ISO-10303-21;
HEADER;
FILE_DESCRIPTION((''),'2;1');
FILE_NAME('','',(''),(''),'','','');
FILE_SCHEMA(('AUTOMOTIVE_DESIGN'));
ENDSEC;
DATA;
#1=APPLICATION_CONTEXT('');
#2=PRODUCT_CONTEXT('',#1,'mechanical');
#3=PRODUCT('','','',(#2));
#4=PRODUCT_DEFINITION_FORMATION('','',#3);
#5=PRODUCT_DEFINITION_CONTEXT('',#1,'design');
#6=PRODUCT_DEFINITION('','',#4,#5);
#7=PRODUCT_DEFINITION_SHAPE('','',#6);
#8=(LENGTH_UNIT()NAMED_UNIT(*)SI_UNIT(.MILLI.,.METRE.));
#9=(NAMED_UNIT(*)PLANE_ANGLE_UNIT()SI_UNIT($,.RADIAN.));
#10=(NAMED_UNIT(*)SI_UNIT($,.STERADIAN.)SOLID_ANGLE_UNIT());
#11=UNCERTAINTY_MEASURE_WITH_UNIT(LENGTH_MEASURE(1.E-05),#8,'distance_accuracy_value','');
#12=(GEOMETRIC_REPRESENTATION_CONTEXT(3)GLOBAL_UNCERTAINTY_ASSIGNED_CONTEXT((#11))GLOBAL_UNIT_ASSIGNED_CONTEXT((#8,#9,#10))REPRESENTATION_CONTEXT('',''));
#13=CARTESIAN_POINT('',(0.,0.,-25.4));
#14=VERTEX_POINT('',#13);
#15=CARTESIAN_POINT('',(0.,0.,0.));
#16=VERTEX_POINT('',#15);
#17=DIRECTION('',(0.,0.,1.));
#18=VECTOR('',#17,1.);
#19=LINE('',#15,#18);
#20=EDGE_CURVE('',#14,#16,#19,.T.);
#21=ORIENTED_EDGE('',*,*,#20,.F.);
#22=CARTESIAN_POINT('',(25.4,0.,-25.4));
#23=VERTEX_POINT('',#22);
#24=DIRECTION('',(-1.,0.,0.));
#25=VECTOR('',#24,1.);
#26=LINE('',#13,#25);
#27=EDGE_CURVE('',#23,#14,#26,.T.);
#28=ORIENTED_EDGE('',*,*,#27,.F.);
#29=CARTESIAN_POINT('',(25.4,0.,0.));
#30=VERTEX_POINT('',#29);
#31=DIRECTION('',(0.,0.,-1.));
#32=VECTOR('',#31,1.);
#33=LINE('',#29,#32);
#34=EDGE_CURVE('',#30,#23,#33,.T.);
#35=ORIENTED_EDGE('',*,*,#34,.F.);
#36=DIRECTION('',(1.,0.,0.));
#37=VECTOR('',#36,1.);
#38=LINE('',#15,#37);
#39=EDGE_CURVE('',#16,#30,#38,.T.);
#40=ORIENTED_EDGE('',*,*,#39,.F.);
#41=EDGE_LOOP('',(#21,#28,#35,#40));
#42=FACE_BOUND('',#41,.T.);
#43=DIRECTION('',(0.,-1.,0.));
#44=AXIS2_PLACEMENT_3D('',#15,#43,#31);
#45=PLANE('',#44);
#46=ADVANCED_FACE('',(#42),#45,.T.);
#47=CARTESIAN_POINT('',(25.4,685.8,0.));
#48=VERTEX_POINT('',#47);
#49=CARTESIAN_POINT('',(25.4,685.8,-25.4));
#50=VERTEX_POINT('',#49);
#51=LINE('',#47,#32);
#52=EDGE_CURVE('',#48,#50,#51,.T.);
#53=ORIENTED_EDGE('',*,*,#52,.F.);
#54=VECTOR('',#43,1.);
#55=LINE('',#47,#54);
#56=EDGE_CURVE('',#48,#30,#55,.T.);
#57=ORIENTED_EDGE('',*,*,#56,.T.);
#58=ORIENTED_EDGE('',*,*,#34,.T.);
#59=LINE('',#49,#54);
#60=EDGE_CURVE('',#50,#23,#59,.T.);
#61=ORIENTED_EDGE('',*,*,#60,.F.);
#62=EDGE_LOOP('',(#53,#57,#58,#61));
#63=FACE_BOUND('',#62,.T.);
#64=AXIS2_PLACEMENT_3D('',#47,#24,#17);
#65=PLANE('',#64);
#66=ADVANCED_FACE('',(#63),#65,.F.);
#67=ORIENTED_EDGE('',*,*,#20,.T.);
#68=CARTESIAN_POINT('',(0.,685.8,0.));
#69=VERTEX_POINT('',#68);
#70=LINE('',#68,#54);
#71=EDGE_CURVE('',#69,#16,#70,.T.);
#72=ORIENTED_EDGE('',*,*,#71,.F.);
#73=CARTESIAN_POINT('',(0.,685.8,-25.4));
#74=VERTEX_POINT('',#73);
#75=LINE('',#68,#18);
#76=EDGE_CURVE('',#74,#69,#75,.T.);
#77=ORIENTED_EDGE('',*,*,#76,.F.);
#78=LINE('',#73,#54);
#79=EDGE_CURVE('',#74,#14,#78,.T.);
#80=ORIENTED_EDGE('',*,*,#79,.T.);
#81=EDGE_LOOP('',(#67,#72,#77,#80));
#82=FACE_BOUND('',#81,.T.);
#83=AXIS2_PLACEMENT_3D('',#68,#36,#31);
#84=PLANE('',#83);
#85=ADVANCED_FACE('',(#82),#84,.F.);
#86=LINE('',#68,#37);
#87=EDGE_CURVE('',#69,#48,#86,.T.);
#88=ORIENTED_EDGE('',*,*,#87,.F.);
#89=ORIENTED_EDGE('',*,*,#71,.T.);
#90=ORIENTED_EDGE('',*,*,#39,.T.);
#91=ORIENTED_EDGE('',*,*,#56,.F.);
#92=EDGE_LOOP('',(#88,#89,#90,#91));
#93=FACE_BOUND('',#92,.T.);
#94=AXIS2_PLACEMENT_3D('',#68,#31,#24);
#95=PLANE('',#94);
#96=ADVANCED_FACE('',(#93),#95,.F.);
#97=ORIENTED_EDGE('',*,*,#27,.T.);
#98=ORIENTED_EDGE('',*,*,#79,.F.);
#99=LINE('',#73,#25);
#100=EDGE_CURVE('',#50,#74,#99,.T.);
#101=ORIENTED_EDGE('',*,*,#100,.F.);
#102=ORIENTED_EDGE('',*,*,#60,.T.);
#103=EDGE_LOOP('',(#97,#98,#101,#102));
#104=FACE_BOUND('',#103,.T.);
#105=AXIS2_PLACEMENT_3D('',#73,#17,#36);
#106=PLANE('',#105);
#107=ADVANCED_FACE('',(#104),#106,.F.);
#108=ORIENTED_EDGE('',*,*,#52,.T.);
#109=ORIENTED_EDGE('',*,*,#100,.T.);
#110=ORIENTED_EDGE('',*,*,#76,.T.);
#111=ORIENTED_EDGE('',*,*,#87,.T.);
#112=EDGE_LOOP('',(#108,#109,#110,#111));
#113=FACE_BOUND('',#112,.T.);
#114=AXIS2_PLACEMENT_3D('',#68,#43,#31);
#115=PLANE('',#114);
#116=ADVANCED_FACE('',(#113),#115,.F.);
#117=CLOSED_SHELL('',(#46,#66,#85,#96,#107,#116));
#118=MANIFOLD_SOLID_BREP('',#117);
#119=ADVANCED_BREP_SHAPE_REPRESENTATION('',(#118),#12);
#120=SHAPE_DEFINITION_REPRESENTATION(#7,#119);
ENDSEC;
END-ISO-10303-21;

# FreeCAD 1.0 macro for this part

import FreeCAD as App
import Part
import Sketcher
from FreeCAD import Vector
Q = App.Units.Quantity

doc = App.newDocument("Part")
body = doc.addObject("PartDesign::Body", "Body")

# Sketch on XZ plane
sketch1 = body.newObject("Sketcher::SketchObject", "Sketch")
sketch1.AttachmentSupport = (doc.getObject("XZ_Plane"), [""])
sketch1.MapMode = "FlatFace"
sketch1.addGeometry([
    Part.LineSegment(Vector(0, -25, 0), Vector(0, 0, 0)),
    Part.LineSegment(Vector(0, 0, 0), Vector(25, 0, 0)),
    Part.LineSegment(Vector(25, 0, 0), Vector(25, -25, 0)),
    Part.LineSegment(Vector(25, -25, 0), Vector(0, -25, 0)),
], False)
sketch1.addConstraint([
    Sketcher.Constraint("Coincident", 0, 2, 1, 1),
    Sketcher.Constraint("Coincident", 1, 2, 2, 1),
    Sketcher.Constraint("Coincident", 2, 2, 3, 1),
    Sketcher.Constraint("Coincident", 3, 2, 0, 1),
    Sketcher.Constraint("Vertical", 0),
    Sketcher.Constraint("Horizontal", 1),
    Sketcher.Constraint("Vertical", 2),
    Sketcher.Constraint("Horizontal", 3),
    Sketcher.Constraint("Coincident", 0, 2, -1, 1),
    Sketcher.Constraint("Equal", 3, 0),
    Sketcher.Constraint("DistanceX", 1, 1, 1, 2, Q("1 in")),
])
pad1 = body.newObject("PartDesign::Pad", "Pad")
pad1.Profile = sketch1
pad1.Length = Q("27 in")
pad1.Reversed = True

doc.recompute()
